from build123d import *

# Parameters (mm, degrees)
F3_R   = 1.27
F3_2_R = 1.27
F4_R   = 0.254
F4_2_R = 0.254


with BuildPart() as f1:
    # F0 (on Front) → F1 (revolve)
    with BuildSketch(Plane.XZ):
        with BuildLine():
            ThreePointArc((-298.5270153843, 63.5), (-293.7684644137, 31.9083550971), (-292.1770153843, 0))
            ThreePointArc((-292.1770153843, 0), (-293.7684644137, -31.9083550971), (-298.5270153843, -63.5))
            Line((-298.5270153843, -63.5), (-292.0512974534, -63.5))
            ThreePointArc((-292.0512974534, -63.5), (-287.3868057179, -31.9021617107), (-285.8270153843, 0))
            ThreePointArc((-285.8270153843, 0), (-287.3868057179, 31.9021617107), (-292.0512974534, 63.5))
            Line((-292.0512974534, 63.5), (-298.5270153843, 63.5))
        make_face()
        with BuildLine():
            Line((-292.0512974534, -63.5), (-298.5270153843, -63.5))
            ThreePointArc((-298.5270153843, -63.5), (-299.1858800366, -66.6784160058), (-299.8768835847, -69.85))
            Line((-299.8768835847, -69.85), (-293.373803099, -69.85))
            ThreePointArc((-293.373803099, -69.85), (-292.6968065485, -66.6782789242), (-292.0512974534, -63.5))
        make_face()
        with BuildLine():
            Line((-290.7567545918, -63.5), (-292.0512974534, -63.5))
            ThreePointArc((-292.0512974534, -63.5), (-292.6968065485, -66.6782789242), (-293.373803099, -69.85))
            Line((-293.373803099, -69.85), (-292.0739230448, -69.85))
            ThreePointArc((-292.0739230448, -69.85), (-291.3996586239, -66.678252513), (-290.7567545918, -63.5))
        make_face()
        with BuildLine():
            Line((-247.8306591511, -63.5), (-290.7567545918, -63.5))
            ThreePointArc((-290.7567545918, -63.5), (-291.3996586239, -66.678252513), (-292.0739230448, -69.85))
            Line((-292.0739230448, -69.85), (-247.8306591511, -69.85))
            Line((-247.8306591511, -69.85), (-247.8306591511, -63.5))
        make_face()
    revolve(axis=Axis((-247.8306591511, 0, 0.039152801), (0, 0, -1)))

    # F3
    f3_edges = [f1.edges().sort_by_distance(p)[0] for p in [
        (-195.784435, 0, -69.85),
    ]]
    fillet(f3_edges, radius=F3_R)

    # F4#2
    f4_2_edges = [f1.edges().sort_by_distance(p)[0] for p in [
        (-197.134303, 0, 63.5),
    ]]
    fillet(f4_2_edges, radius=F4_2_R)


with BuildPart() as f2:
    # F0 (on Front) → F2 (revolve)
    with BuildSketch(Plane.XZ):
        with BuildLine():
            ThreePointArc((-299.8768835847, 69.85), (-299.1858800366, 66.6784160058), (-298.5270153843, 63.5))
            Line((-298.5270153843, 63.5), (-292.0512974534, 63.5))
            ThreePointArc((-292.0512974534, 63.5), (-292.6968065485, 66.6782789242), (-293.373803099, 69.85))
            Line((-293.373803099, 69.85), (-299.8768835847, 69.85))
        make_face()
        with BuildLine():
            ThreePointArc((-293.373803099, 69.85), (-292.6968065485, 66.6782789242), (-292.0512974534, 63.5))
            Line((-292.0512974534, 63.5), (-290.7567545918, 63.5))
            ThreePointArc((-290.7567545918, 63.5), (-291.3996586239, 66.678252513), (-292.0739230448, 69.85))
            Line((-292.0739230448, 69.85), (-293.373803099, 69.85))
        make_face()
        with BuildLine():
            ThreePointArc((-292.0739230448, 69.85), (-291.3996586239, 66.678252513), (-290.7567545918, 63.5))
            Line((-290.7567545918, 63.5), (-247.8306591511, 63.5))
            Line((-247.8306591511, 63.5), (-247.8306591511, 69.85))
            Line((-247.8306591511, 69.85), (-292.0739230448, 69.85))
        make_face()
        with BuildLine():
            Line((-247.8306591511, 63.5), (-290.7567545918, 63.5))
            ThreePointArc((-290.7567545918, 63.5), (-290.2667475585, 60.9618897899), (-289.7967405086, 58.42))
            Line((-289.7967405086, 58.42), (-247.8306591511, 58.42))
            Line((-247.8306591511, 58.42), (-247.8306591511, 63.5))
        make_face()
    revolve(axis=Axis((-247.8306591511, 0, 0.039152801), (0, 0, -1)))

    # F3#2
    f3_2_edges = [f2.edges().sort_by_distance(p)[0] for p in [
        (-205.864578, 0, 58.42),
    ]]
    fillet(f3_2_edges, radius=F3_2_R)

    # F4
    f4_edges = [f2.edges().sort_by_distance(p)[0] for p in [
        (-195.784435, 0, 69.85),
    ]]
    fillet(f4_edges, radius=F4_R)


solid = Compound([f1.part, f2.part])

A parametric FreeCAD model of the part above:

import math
import FreeCAD as App
import Part
import Sketcher
Q = App.Units.Quantity


def edges_at(feature, points):
    """Names of the edges that pass closest to the given points."""
    edges = feature.Shape.Edges
    near = lambda p: min(range(len(edges)), key=lambda i: edges[i].distToShape(Part.Vertex(*p))[0])
    return sorted({f"Edge{near(p) + 1}" for p in points})

doc = App.newDocument("Part")
body = doc.addObject("PartDesign::Body", "Body")

sketch1 = doc.addObject("Sketcher::SketchObject", "Sketch")
body.addObject(sketch1)
sketch1.AttachmentSupport = (doc.XZ_Plane, [""])
sketch1.MapMode = "FlatFace"
sketch1.addGeometry([
    Part.ArcOfCircle(Part.Circle(App.Vector(-613, 0, 0), App.Vector(0, 0, 1), 321), math.radians(0), math.radians(11.42)),
    Part.ArcOfCircle(Part.Circle(App.Vector(-613, 0, 0), App.Vector(0, 0, 1), 321), math.radians(-11.42), math.radians(0)),
    Part.ArcOfCircle(Part.Circle(App.Vector(-613, 0, 0), App.Vector(0, 0, 1), 321), math.radians(-12.58), math.radians(-11.42)),
    Part.LineSegment(App.Vector(-300, -70, 0), App.Vector(-248, -70, 0)),
    Part.LineSegment(App.Vector(-248, -70, 0), App.Vector(-248, -64, 0)),
    Part.LineSegment(App.Vector(-248, -64, 0), App.Vector(-292, -64, 0)),
    Part.ArcOfCircle(Part.Circle(App.Vector(-613, 0, 0), App.Vector(0, 0, 1), 327), math.radians(-11.2), math.radians(0)),
    Part.ArcOfCircle(Part.Circle(App.Vector(-613, 0, 0), App.Vector(0, 0, 1), 327), math.radians(0), math.radians(11.2)),
    Part.LineSegment(App.Vector(-292, 64, 0), App.Vector(-299, 64, 0)),
], False)
sketch1.addGeometry(Part.LineSegment(App.Vector(-248, 64, 0), App.Vector(-248, -70, 0)), True)
sketch1.addConstraint([
    Sketcher.Constraint("Tangent", 0, 1, 1, 2),
    Sketcher.Constraint("Tangent", 1, 1, 2, 2),
    Sketcher.Constraint("Coincident", 2, 1, 3, 1),
    Sketcher.Constraint("Coincident", 3, 2, 4, 1),
    Sketcher.Constraint("Coincident", 4, 2, 5, 1),
    Sketcher.Constraint("Coincident", 5, 2, 6, 1),
    Sketcher.Constraint("Tangent", 6, 2, 7, 1),
    Sketcher.Constraint("Coincident", 7, 2, 8, 1),
    Sketcher.Constraint("Coincident", 8, 2, 0, 2),
    Sketcher.Constraint("Horizontal", 3),
    Sketcher.Constraint("Vertical", 4),
    Sketcher.Constraint("Horizontal", 5),
    Sketcher.Constraint("Horizontal", 8),
    Sketcher.Constraint("Vertical", 9),
    Sketcher.Constraint("Coincident", 2, 3, 0, 3),
    Sketcher.Constraint("Coincident", 6, 3, 0, 3),
    Sketcher.Constraint("Coincident", 9, 2, 3, 2),
    Sketcher.Constraint("Equal", 6, 7),
    Sketcher.Constraint("Symmetric", 1, 1, 8, 2, -1),
    Sketcher.Constraint("PointOnObject", 0, 1, -1),
    Sketcher.Constraint("PointOnObject", 6, 2, -1),
    Sketcher.Constraint("Horizontal", 1, 1, 4, 2),
    Sketcher.Constraint("Horizontal", 8, 2, 9, 1),
    Sketcher.Constraint("Radius", 0, Q("12.625 in")),
    Sketcher.Constraint("Radius", 6, Q("12.875 in")),
    Sketcher.Constraint("DistanceY", 5, 2, 7, 2, Q("5 in")),
    Sketcher.Constraint("DistanceY", 4, 1, 4, 2, Q("0.25 in")),
    Sketcher.Constraint("DistanceX", 5, 2, 5, 1, 44.220638),
    Sketcher.Constraint("DistanceX", 3, 2, -1, 1, 247.830659),
])
revolution = doc.addObject("PartDesign::Revolution", "Revolution")
body.addObject(revolution)
revolution.Profile = sketch1
revolution.ReferenceAxis = (sketch1, ["Axis0"])
revolution.Angle = 360
doc.recompute()

fillet = doc.addObject("PartDesign::Fillet", "Fillet")
body.addObject(fillet)
fillet.Base = (revolution, edges_at(revolution, [(-195.784, 0, -69.85)]))
fillet.Radius = Q("0.05 in")
doc.recompute()

fillet2 = doc.addObject("PartDesign::Fillet", "Fillet001")
body.addObject(fillet2)
fillet2.Base = (fillet, edges_at(fillet, [(-197.134, 0, 63.5)]))
fillet2.Radius = Q("0.01 in")
body2 = doc.addObject("PartDesign::Body", "Body001")

sketch2 = doc.addObject("Sketcher::SketchObject", "Sketch001")
body2.addObject(sketch2)
sketch2.AttachmentSupport = (doc.getObject("XZ_Plane001"), [""])
sketch2.MapMode = "FlatFace"
sketch2.addGeometry([
    Part.ArcOfCircle(Part.Circle(App.Vector(-613, 0, 0), App.Vector(0, 0, 1), 321), math.radians(11.42), math.radians(12.58)),
    Part.LineSegment(App.Vector(-299, 64, 0), App.Vector(-291, 64, 0)),
    Part.ArcOfCircle(Part.Circle(App.Vector(-613, 0, 0), App.Vector(0, 0, 1), 328), math.radians(10.25), math.radians(11.15)),
    Part.LineSegment(App.Vector(-290, 58, 0), App.Vector(-248, 58, 0)),
    Part.LineSegment(App.Vector(-248, 58, 0), App.Vector(-248, 70, 0)),
    Part.LineSegment(App.Vector(-248, 70, 0), App.Vector(-300, 70, 0)),
], False)
sketch2.addGeometry(Part.LineSegment(App.Vector(-248, 70, 0), App.Vector(-248, 0, 0)), True)
sketch2.addConstraint([
    Sketcher.Constraint("Coincident", 0, 1, 1, 1),
    Sketcher.Constraint("Coincident", 1, 2, 2, 2),
    Sketcher.Constraint("Coincident", 2, 1, 3, 1),
    Sketcher.Constraint("Coincident", 3, 2, 4, 1),
    Sketcher.Constraint("Coincident", 4, 2, 5, 1),
    Sketcher.Constraint("Coincident", 5, 2, 0, 2),
    Sketcher.Constraint("Horizontal", 1),
    Sketcher.Constraint("Horizontal", 3),
    Sketcher.Constraint("Vertical", 4),
    Sketcher.Constraint("Horizontal", 5),
    Sketcher.Constraint("Vertical", 6),
    Sketcher.Constraint("Coincident", 2, 3, 0, 3),
    Sketcher.Constraint("Coincident", 6, 1, 4, 2),
    Sketcher.Constraint("PointOnObject", 0, 3, -1),
    Sketcher.Constraint("PointOnObject", 6, 2, -1),
    Sketcher.Constraint("Radius", 0, Q("12.625 in")),
    Sketcher.Constraint("Radius", 2, Q("12.925 in")),
    Sketcher.Constraint("DistanceY", 4, 1, 4, 2, Q("0.45 in")),
    Sketcher.Constraint("DistanceY", 6, 2, 6, 1, Q("2.75 in")),
    Sketcher.Constraint("DistanceY", -1, 1, 0, 1, Q("2.5 in")),
    Sketcher.Constraint("DistanceX", 3, 1, 3, 2, 41.966081),
    Sketcher.Constraint("DistanceX", 2, 1, -1, 1, 289.796741),
])
revolution2 = doc.addObject("PartDesign::Revolution", "Revolution001")
body2.addObject(revolution2)
revolution2.Profile = sketch2
revolution2.ReferenceAxis = (sketch2, ["Axis0"])
revolution2.Angle = 360
doc.recompute()

fillet3 = doc.addObject("PartDesign::Fillet", "Fillet002")
body2.addObject(fillet3)
fillet3.Base = (revolution2, edges_at(revolution2, [(-205.865, 0, 58.42)]))
fillet3.Radius = Q("0.05 in")
doc.recompute()

fillet4 = doc.addObject("PartDesign::Fillet", "Fillet003")
body2.addObject(fillet4)
fillet4.Base = (fillet3, edges_at(fillet3, [(-195.784, 0, 69.85)]))
fillet4.Radius = Q("0.01 in")

doc.recompute()
